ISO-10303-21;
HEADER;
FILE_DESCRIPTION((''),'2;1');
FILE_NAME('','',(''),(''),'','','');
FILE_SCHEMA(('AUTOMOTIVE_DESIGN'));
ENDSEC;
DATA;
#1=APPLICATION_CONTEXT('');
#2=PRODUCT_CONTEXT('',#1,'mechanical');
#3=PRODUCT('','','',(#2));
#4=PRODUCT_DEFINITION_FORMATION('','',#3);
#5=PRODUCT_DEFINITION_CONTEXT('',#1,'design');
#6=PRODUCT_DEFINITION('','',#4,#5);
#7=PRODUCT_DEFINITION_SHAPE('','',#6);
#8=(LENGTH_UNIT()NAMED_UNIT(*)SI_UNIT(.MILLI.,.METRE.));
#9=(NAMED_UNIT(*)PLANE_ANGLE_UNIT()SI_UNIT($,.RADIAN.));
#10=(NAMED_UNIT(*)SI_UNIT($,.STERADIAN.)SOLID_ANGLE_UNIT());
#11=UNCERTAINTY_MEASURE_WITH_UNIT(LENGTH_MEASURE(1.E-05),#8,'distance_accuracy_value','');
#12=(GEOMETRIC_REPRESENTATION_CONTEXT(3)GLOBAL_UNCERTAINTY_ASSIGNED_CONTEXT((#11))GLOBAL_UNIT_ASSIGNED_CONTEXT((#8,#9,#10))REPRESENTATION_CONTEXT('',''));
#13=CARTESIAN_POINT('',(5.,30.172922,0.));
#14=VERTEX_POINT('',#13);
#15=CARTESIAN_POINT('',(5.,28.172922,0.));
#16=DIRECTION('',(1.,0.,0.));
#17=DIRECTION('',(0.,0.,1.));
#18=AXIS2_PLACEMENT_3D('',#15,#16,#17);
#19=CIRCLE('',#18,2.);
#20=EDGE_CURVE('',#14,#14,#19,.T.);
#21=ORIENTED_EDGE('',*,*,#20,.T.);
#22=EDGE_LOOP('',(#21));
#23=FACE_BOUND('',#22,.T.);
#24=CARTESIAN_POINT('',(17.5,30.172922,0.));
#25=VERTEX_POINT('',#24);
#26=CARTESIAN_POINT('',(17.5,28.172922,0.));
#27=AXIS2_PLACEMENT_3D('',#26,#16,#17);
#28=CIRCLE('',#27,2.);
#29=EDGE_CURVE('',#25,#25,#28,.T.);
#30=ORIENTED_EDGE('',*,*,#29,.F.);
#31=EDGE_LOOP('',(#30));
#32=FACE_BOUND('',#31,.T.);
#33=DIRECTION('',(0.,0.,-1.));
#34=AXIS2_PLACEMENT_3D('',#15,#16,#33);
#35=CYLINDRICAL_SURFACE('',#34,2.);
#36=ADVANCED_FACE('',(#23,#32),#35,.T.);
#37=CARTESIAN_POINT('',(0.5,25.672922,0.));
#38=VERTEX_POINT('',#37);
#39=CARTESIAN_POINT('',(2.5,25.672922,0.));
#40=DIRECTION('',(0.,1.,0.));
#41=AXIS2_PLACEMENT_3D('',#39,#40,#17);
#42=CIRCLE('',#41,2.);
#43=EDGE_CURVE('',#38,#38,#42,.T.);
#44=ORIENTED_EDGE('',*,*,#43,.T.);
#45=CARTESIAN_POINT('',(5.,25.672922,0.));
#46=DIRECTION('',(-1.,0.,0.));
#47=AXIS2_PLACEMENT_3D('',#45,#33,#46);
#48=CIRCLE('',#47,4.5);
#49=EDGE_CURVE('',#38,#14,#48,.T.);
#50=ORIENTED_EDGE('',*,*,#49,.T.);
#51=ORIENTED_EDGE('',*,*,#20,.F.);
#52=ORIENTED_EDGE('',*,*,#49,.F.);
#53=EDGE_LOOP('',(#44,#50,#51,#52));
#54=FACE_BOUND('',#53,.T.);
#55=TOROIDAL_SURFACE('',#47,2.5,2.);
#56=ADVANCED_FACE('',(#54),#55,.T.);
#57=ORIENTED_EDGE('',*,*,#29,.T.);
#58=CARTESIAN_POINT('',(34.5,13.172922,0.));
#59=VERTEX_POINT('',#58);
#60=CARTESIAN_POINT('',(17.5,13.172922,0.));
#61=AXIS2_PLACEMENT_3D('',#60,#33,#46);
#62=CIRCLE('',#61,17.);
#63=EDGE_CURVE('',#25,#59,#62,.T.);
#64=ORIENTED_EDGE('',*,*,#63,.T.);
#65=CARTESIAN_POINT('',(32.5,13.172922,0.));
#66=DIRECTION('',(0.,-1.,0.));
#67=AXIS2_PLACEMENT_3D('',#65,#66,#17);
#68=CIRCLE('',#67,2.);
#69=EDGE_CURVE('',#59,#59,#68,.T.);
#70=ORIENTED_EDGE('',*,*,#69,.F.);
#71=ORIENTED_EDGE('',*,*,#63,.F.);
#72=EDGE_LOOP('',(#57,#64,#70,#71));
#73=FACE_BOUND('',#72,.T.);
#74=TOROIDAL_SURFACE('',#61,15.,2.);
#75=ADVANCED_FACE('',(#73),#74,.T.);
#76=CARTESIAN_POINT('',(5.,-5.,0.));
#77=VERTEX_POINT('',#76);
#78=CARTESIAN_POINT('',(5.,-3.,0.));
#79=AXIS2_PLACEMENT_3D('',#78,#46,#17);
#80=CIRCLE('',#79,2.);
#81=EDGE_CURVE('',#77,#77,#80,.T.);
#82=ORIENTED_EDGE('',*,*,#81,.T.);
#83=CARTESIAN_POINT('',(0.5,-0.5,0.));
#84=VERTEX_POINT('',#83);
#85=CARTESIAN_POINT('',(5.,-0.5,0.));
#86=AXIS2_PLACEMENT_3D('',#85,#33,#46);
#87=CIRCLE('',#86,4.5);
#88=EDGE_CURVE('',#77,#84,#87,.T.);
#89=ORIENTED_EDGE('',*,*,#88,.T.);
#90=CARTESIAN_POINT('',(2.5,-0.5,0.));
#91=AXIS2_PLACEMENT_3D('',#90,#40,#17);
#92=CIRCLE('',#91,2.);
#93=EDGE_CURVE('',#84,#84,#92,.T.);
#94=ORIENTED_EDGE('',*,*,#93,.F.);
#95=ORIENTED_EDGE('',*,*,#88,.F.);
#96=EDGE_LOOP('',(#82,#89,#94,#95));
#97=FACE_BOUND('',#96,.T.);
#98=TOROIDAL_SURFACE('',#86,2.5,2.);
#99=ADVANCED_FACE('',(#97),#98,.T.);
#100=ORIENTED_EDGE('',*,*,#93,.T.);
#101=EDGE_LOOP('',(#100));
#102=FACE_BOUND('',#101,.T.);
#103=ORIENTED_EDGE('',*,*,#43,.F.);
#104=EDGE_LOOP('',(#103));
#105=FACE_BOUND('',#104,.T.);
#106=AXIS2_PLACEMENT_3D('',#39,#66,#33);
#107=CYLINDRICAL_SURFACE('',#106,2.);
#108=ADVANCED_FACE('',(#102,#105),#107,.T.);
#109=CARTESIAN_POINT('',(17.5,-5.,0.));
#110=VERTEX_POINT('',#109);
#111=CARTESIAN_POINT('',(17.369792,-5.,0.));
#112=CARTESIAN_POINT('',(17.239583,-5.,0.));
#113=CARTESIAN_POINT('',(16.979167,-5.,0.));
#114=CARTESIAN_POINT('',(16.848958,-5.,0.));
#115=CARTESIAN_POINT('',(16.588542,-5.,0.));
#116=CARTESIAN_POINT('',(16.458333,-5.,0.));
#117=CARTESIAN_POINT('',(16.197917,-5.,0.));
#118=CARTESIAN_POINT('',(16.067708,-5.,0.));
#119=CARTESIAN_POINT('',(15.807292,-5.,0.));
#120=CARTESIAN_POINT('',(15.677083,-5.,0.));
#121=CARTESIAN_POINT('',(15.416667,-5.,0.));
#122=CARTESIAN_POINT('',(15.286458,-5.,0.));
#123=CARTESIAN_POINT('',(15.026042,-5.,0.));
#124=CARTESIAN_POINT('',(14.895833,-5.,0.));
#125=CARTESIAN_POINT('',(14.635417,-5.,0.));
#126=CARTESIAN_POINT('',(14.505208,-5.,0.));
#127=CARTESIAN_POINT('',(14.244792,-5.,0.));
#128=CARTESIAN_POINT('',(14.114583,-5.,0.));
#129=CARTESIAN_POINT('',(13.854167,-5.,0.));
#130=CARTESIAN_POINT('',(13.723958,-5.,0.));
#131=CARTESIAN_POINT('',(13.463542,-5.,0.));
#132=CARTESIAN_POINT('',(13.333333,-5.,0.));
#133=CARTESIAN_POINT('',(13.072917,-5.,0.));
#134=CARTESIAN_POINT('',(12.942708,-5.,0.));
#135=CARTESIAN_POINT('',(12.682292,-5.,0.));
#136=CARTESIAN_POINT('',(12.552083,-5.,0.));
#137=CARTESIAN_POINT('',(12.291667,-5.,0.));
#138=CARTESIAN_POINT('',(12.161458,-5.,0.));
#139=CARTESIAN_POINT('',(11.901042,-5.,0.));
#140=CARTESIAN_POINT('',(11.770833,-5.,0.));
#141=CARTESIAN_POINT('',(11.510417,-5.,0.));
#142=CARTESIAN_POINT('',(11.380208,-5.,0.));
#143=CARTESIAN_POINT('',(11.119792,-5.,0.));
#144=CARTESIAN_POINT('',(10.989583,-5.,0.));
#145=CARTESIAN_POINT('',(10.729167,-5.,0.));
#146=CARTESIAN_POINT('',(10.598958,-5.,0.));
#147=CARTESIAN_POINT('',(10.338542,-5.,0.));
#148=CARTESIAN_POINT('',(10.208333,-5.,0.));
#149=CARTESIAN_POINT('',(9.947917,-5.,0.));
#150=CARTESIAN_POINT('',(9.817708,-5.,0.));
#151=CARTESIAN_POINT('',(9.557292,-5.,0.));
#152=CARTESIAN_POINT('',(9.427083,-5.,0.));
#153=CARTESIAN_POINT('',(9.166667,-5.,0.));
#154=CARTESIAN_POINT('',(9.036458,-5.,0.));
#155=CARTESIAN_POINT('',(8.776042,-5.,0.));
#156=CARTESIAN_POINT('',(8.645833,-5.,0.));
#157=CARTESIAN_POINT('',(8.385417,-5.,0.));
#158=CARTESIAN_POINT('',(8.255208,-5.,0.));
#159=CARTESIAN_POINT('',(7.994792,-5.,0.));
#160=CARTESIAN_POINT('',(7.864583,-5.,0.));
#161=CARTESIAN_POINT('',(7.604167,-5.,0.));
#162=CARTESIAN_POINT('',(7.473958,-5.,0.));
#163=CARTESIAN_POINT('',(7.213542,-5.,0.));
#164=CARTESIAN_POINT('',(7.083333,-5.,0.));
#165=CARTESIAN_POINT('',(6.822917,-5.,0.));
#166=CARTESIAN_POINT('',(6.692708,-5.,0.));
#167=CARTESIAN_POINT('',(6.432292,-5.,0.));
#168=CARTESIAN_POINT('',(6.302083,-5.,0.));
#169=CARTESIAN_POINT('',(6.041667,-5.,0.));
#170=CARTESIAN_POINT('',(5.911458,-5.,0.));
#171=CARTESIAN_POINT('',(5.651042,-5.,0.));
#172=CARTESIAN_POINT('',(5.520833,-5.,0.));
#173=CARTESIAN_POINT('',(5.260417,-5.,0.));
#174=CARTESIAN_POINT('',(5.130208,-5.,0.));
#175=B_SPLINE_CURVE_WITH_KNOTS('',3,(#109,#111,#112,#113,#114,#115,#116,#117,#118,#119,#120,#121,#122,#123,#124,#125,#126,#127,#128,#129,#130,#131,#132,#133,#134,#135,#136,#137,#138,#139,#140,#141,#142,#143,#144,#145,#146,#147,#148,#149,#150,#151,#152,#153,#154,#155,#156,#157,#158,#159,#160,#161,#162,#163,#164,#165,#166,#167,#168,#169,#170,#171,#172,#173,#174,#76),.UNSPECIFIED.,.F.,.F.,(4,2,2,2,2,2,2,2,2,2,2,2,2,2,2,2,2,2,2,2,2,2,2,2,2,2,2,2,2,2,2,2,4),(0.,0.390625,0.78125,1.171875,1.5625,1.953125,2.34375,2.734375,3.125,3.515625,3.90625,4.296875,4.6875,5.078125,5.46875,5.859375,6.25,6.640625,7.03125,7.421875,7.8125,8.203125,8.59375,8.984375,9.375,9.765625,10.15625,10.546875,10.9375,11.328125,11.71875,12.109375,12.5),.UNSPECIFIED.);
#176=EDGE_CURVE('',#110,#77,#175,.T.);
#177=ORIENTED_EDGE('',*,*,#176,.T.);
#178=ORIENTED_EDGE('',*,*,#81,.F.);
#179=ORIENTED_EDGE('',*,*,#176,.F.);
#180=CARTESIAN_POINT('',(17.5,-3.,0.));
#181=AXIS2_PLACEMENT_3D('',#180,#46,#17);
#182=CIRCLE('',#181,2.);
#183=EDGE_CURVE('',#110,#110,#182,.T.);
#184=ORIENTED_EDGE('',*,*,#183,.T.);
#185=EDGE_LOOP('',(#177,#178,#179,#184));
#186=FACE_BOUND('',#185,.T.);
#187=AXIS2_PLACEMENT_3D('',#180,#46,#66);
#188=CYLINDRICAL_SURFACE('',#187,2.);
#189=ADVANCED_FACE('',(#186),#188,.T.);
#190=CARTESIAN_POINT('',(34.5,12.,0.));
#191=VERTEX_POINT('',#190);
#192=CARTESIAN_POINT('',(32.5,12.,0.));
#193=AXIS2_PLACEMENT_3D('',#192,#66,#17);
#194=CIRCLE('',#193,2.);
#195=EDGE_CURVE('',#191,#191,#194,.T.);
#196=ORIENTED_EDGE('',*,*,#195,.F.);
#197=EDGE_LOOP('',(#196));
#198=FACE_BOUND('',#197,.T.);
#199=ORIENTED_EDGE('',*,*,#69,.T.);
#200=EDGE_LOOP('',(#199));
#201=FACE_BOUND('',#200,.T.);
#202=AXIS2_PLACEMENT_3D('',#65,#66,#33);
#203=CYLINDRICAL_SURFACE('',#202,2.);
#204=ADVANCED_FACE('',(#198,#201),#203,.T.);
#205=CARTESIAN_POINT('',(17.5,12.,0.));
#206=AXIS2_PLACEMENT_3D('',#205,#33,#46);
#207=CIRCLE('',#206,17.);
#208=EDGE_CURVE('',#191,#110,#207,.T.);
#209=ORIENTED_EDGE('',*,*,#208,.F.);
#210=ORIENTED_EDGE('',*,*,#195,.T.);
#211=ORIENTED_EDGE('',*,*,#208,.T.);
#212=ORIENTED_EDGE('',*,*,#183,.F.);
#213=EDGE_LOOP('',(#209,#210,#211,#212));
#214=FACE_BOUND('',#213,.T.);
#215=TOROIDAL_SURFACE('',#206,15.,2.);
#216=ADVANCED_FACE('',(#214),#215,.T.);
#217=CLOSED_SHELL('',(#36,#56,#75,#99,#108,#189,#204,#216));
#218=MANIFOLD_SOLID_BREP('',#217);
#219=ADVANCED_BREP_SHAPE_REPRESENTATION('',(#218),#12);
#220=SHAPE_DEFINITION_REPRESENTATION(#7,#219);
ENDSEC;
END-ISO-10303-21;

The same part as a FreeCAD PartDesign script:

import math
import FreeCAD as App
import Part
import Sketcher

V = App.Vector

doc = App.newDocument("Part")
body = doc.addObject("PartDesign::Body", "Body")

# Sketch on XZ plane
sketch1 = doc.addObject("Sketcher::SketchObject", "Sketch")
body.addObject(sketch1)
sketch1.AttachmentSupport = (doc.XZ_Plane, [""])
sketch1.MapMode = "FlatFace"
sketch1.addGeometry(Part.Circle(V(2.5, 0, 0), V(0, 0, 1), 2), False)
sketch1.addConstraint([
    Sketcher.Constraint("PointOnObject", 0, 3, -1),
    Sketcher.Constraint("Diameter", 0, 4.0),
    Sketcher.Constraint("DistanceX", -1, 1, 0, 3, 2.5),
])

# Sketch on XY plane
sketch2 = doc.addObject("Sketcher::SketchObject", "Sketch001")
body.addObject(sketch2)
sketch2.AttachmentSupport = (doc.XY_Plane, [""])
sketch2.MapMode = "FlatFace"
sketch2.addGeometry([
    Part.LineSegment(V(2.5, 25.7, 0), V(2.5, -0.5, 0)),  # 0
    Part.ArcOfCircle(Part.Circle(V(5, -0.5, 0), V(0, 0, 1), 2.5), math.radians(180), math.radians(270)),  # 1
    Part.LineSegment(V(5, -3, 0), V(17.5, -3, 0)),  # 2
    Part.ArcOfCircle(Part.Circle(V(17.5, 12, 0), V(0, 0, 1), 15), math.radians(-90), math.radians(0)),  # 3
    Part.LineSegment(V(32.5, 12, 0), V(32.5, 13.2, 0)),  # 4
    Part.ArcOfCircle(Part.Circle(V(17.5, 13.2, 0), V(0, 0, 1), 15), math.radians(0), math.radians(90)),  # 5
    Part.LineSegment(V(17.5, 28.2, 0), V(5, 28.2, 0)),  # 6
    Part.ArcOfCircle(Part.Circle(V(5, 25.7, 0), V(0, 0, 1), 2.5), math.radians(90), math.radians(180)),  # 7
], False)
sketch2.addConstraint([
    Sketcher.Constraint("Tangent", 0, 2, 1, 1),
    Sketcher.Constraint("Tangent", 1, 2, 2, 1),
    Sketcher.Constraint("Tangent", 2, 2, 3, 1),
    Sketcher.Constraint("Tangent", 3, 2, 4, 1),
    Sketcher.Constraint("Tangent", 4, 2, 5, 1),
    Sketcher.Constraint("Tangent", 5, 2, 6, 1),
    Sketcher.Constraint("Tangent", 6, 2, 7, 1),
    Sketcher.Constraint("Tangent", 7, 2, 0, 1),
    Sketcher.Constraint("Vertical", 0),
    Sketcher.Constraint("Horizontal", 2),
    Sketcher.Constraint("Vertical", 4),
    Sketcher.Constraint("Horizontal", 6),
    Sketcher.Constraint("Equal", 3, 5),
    Sketcher.Constraint("Equal", 1, 7),
    Sketcher.Constraint("Radius", 3, 15.0),
    Sketcher.Constraint("Radius", 1, 2.5),
    Sketcher.Constraint("DistanceX", 2, 1, 2, 2, 12.5),
    Sketcher.Constraint("DistanceX", -1, 1, 1, 3, 5.0),
    Sketcher.Constraint("DistanceY", -1, 1, 3, 3, 12.0),
    Sketcher.Constraint("DistanceY", 0, 2, 0, 1, 26.172922),
])
doc.recompute()

additivepipe = doc.addObject("PartDesign::AdditivePipe", "AdditivePipe")
body.addObject(additivepipe)
additivepipe.Profile = sketch1
additivepipe.Spine = (sketch2, ["Edge1", "Edge2", "Edge3", "Edge4", "Edge5", "Edge6", "Edge7", "Edge8"])

doc.recompute()
